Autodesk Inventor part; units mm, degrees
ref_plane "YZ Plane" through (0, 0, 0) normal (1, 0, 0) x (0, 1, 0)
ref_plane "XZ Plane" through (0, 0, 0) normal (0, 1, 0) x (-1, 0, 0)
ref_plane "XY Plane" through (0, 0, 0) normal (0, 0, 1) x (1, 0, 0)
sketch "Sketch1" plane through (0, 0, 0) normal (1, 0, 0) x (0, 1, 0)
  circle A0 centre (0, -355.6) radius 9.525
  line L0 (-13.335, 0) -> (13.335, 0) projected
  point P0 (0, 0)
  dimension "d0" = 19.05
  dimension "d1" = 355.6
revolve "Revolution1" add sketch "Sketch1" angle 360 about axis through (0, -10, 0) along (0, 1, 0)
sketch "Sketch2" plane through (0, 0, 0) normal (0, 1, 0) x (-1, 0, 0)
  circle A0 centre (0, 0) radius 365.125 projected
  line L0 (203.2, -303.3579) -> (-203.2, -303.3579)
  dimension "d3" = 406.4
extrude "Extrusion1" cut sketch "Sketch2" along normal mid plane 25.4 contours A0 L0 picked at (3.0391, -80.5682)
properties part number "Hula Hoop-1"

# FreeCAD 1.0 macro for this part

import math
import FreeCAD as App
import Part
import Sketcher
from FreeCAD import Vector
Q = App.Units.Quantity

doc = App.newDocument("Part")
params = doc.addObject("Spreadsheet::Sheet", "Params")
for row, (alias, value) in enumerate([
    ("sketch1_diameter", "0.75 in"),
    ("revolution_angle", "360 deg"),
    ("sketch2_width", "16 in"),
    ("sketch2_radius", "14.375 in"),
    ("pocket1_length", "1 in"),
], start=1):
    params.set(f"A{row}", alias)
    params.set(f"B{row}", "=" + value)
    params.setAlias(f"B{row}", alias)

body = doc.addObject("PartDesign::Body", "Body")

# Sketch on YZ plane
sketch1 = doc.addObject("Sketcher::SketchObject", "Sketch")
body.addObject(sketch1)
sketch1.AttachmentSupport = (doc.YZ_Plane, [""])
sketch1.MapMode = "FlatFace"
sketch1.addGeometry(Part.Circle(Vector(0, -356, 0), Vector(0, 0, 1), 10), False)
sketch1.addConstraint([
    Sketcher.Constraint("PointOnObject", 0, 3, -2),
    Sketcher.Constraint("Diameter", 0, Q("0.75 in")),
    Sketcher.Constraint("DistanceY", 0, 3, -1, 1, Q("14 in")),
])
sketch1.setExpression("Constraints[1]", "Params.sketch1_diameter")
revolution = doc.addObject("PartDesign::Revolution", "Revolution")
body.addObject(revolution)
revolution.Profile = sketch1
revolution.ReferenceAxis = (sketch1, ["H_Axis"])
revolution.setExpression("Angle", "Params.revolution_angle")

# Sketch on XZ plane
sketch2 = doc.addObject("Sketcher::SketchObject", "Sketch001")
body.addObject(sketch2)
sketch2.AttachmentSupport = (doc.XZ_Plane, [""])
sketch2.MapMode = "FlatFace"
sketch2.addGeometry([
    Part.ArcOfCircle(Part.Circle(Vector(0, 0, 0), Vector(0, 0, 1), 365), math.radians(-56), math.radians(236)),
    Part.LineSegment(Vector(-203, -303, 0), Vector(203, -303, 0)),
], False)
sketch2.addConstraint([
    Sketcher.Constraint("Coincident", 0, 1, 1, 2),
    Sketcher.Constraint("Coincident", 1, 1, 0, 2),
    Sketcher.Constraint("Horizontal", 1),
    Sketcher.Constraint("Coincident", 0, 3, -1, 1),
    Sketcher.Constraint("DistanceX", 1, 1, 1, 2, Q("16 in")),
    Sketcher.Constraint("Radius", 0, Q("14.375 in")),
])
sketch2.setExpression("Constraints[4]", "Params.sketch2_width")
sketch2.setExpression("Constraints[5]", "Params.sketch2_radius")
pocket1 = doc.addObject("PartDesign::Pocket", "Pocket")
body.addObject(pocket1)
pocket1.Profile = sketch2
pocket1.setExpression("Length", "Params.pocket1_length")
pocket1.Midplane = True

doc.recompute()
